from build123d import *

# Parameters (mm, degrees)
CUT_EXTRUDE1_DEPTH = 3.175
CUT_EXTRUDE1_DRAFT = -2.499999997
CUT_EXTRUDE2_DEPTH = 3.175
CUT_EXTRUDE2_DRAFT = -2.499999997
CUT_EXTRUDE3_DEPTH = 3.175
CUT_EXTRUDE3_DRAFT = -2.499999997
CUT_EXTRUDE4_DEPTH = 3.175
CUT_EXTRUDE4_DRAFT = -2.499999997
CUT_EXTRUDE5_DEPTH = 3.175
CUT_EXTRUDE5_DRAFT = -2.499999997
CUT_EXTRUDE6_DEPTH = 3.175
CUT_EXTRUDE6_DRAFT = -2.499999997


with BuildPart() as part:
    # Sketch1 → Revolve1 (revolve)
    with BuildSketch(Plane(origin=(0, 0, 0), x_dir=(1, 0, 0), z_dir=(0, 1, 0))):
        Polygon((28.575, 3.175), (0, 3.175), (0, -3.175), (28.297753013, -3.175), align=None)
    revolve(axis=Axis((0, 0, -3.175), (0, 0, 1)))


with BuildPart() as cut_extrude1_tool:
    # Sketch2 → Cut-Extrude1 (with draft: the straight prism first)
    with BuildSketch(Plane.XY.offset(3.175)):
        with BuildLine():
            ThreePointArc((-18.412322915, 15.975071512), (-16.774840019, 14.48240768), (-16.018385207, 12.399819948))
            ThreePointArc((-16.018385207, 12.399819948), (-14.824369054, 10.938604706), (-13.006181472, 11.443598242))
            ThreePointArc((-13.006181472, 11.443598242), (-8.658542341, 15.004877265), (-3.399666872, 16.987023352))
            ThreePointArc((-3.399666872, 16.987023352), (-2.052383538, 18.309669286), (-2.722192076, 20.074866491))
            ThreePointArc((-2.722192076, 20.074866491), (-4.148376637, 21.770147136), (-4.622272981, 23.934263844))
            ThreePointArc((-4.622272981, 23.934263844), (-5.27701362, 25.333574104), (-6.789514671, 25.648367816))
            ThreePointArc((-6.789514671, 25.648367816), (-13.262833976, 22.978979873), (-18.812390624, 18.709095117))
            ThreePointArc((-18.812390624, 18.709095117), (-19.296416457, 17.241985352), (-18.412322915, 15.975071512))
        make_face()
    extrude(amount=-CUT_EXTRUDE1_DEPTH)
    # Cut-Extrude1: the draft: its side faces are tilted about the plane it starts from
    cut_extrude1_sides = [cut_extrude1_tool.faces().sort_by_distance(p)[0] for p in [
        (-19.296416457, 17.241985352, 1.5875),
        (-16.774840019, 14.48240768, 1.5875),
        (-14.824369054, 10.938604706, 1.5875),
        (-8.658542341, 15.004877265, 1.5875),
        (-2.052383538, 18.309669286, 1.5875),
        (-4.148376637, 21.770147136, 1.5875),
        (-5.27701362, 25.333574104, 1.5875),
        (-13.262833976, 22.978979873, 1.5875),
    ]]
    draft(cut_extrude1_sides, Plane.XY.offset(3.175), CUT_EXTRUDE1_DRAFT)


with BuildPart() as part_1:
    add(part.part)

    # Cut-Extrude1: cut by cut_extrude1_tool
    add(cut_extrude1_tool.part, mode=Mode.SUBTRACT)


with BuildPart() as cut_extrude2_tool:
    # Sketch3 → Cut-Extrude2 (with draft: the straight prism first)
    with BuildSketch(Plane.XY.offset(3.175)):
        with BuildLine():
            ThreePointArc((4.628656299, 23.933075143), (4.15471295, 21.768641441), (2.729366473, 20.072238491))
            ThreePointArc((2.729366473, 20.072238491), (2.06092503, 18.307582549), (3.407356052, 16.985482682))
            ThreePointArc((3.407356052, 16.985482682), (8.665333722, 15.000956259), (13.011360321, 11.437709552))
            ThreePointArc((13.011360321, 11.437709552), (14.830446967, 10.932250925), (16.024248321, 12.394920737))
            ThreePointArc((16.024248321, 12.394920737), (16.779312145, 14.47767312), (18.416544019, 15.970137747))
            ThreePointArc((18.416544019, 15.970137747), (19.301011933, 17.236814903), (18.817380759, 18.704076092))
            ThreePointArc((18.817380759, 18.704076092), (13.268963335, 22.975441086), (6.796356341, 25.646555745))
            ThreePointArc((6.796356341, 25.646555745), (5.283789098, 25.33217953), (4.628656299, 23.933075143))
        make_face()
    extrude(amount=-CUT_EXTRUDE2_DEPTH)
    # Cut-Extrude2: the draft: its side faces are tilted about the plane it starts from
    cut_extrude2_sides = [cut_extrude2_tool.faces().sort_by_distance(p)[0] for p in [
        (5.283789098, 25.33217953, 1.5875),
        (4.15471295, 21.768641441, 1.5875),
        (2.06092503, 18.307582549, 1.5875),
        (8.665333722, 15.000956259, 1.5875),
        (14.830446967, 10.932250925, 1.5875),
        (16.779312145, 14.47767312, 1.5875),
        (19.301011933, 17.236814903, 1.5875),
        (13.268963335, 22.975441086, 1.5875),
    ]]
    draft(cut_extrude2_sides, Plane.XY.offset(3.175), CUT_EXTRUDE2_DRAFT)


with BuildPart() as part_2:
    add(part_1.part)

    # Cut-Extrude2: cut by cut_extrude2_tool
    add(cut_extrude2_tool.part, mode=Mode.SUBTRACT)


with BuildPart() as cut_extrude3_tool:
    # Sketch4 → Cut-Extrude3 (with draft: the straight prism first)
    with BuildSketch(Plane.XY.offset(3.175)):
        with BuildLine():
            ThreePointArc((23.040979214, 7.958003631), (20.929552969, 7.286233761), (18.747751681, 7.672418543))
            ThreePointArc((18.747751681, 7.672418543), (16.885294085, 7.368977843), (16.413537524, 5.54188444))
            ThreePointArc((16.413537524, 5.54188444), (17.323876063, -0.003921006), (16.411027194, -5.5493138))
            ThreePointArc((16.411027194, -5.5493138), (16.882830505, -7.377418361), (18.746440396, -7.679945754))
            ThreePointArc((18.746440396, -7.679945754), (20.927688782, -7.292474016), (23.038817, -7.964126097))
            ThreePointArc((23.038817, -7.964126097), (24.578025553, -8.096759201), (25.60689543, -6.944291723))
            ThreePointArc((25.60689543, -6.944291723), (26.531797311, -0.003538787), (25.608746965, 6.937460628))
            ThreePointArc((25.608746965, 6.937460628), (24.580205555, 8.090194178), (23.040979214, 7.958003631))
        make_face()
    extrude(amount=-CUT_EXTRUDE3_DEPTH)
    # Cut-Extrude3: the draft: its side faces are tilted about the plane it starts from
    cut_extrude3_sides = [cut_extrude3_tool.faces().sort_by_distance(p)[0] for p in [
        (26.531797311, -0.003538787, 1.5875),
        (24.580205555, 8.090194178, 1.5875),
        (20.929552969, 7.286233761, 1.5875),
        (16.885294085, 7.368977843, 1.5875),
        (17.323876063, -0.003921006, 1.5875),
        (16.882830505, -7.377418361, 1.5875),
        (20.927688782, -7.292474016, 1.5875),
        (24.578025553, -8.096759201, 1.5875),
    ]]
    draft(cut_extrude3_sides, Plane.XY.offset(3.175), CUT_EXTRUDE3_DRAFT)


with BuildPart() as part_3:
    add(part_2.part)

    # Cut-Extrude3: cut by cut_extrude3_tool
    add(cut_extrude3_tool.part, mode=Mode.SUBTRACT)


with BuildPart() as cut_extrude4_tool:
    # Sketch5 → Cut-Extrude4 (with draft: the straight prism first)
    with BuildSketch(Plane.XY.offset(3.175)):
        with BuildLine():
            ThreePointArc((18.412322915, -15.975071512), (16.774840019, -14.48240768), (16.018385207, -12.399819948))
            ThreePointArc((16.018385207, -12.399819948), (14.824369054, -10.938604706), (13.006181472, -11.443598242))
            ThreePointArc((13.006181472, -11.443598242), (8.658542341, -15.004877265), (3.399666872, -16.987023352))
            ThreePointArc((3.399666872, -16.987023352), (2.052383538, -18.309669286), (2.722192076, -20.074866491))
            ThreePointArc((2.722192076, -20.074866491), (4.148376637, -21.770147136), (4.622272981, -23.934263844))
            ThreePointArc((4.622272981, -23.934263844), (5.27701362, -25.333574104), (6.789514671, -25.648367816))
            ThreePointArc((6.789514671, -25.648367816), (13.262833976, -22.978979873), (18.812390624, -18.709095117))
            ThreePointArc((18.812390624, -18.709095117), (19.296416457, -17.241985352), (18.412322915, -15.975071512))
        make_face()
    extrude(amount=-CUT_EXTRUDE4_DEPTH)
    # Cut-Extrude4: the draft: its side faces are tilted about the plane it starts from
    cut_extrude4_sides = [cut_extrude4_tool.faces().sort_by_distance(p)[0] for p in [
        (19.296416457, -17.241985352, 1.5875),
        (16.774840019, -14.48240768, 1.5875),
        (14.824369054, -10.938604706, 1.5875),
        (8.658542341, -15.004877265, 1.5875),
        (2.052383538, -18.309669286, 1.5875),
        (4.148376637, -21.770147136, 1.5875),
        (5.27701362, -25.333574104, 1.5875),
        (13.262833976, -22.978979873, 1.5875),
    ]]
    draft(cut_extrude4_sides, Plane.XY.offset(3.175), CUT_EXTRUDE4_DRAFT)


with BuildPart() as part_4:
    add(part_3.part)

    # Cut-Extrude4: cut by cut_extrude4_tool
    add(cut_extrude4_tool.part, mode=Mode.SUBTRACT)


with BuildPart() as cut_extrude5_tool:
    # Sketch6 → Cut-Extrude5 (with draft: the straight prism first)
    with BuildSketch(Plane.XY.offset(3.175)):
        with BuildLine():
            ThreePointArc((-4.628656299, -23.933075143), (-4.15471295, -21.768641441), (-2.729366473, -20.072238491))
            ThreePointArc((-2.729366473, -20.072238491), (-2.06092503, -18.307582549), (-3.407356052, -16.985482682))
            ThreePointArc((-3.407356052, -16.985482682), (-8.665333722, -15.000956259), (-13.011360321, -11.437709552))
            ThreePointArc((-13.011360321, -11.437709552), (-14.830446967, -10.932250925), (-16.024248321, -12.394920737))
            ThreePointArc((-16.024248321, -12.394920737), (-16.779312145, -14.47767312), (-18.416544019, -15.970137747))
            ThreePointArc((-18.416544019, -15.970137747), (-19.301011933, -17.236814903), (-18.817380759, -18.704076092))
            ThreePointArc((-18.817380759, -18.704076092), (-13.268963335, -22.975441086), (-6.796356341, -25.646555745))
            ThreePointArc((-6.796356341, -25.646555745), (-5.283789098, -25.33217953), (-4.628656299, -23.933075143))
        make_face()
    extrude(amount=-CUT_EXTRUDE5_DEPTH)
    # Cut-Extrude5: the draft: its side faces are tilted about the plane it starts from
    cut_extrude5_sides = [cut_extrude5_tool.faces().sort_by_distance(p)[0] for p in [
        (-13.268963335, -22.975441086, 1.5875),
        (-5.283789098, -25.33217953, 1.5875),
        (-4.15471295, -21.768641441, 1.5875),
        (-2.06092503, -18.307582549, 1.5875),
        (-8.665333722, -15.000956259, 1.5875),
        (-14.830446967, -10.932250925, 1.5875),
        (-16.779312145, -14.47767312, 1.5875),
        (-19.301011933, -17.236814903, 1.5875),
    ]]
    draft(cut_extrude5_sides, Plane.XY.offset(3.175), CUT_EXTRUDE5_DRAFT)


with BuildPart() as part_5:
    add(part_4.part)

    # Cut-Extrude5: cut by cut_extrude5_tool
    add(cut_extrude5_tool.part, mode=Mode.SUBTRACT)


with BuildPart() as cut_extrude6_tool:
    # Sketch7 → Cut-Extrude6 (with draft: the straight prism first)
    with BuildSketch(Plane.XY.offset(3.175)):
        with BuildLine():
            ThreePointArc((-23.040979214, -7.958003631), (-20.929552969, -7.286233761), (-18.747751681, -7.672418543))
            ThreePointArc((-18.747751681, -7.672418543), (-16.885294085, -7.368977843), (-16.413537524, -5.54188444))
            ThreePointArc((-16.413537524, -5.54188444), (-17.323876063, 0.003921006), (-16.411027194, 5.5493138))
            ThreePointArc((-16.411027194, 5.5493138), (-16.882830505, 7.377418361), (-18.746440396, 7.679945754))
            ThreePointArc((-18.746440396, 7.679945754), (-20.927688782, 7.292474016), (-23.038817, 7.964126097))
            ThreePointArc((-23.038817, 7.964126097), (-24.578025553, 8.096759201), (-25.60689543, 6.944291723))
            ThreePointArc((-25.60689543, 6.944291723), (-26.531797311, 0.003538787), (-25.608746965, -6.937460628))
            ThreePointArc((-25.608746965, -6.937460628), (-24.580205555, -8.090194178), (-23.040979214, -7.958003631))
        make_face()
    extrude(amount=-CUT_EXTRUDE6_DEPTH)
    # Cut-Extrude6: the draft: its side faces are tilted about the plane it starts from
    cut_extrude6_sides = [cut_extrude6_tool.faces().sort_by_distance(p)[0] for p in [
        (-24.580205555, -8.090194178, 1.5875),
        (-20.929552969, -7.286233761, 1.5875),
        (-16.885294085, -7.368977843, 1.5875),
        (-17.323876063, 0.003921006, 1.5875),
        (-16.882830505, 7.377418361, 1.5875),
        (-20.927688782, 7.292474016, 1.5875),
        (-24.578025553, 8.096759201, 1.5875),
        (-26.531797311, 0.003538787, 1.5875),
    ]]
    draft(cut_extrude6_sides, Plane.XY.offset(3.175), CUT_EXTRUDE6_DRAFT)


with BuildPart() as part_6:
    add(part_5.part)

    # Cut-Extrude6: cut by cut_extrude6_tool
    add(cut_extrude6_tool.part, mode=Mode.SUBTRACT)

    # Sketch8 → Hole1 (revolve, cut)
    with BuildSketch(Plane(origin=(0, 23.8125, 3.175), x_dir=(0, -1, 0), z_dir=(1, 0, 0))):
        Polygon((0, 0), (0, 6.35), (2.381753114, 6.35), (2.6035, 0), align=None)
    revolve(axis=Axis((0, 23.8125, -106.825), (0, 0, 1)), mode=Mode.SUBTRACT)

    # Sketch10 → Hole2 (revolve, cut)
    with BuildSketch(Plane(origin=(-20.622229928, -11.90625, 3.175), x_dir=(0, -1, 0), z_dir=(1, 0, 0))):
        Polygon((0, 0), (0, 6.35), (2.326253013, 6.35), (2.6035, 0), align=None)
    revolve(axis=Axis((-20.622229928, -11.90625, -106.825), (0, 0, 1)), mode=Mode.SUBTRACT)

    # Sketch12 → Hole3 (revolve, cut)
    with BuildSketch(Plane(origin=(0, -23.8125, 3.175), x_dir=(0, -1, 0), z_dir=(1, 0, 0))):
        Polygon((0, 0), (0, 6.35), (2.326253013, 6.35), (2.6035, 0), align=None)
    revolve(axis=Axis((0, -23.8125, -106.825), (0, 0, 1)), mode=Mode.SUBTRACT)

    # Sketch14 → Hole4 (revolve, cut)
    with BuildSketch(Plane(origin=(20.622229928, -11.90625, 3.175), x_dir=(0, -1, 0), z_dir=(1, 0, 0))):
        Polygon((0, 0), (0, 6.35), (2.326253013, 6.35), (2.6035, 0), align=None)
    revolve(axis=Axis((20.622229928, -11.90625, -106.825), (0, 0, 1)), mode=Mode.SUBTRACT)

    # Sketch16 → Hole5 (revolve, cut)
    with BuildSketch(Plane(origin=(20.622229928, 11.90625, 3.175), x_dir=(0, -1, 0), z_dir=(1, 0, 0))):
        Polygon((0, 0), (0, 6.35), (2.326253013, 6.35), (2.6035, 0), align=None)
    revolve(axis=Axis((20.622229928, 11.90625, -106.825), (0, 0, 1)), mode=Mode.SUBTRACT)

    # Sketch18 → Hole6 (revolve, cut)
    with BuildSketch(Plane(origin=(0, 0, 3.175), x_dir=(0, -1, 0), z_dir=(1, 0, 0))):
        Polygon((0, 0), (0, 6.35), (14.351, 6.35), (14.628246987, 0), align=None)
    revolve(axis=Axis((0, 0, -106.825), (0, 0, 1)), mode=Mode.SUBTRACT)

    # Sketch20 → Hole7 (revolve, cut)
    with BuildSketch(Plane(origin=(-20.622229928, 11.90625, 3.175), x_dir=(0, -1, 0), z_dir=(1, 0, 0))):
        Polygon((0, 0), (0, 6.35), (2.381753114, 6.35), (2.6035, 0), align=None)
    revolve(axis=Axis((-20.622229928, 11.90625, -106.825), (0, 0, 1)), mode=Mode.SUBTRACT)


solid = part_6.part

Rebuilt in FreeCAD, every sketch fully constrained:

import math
import FreeCAD as App
import Part
import Sketcher
Q = App.Units.Quantity


def faces_at(feature, points):
    """Names of the faces that lie closest to the given points."""
    faces = feature.Shape.Faces
    near = lambda p: min(range(len(faces)), key=lambda i: faces[i].distToShape(Part.Vertex(*p))[0])
    return sorted({f"Face{near(p) + 1}" for p in points})


def add_polygon(sketch, points):
    """Adds a closed chain of lines whose ends are joined by coincident constraints."""
    first, n = sketch.GeometryCount, len(points)
    for a, b in zip(points, points[1:] + points[:1]):
        sketch.addGeometry(Part.LineSegment(App.Vector(*a, 0), App.Vector(*b, 0)), False)
    for i in range(n):
        sketch.addConstraint(Sketcher.Constraint("Coincident", first + i, 2, first + (i + 1) % n, 1))

doc = App.newDocument("Part")
body = doc.addObject("PartDesign::Body", "Body")

sketch1 = body.newObject("Sketcher::SketchObject", "Sketch")
sketch1.AttachmentSupport = (doc.getObject("XZ_Plane"), [""])
sketch1.MapMode = "FlatFace"
add_polygon(sketch1, [(29, -3), (0, -3), (0, 3), (28, 3)])
sketch1.addConstraint([
    Sketcher.Constraint("Horizontal", 0),
    Sketcher.Constraint("Vertical", 1),
    Sketcher.Constraint("Horizontal", 2),
    Sketcher.Constraint("Symmetric", 0, 2, 1, 2, -1, 1),
    Sketcher.Constraint("DistanceY", 1, 1, 1, 2, Q("0.25 in")),
    Sketcher.Constraint("Angle", 3, Q("-87.5 deg")),
    Sketcher.Constraint("DistanceX", 0, 2, 0, 1, Q("1.125 in")),
])
revolution = body.newObject("PartDesign::Revolution", "Revolution")
revolution.Profile = sketch1
revolution.ReferenceAxis = (sketch1, ["V_Axis"])
revolution.Angle = 360
body2 = doc.addObject("PartDesign::Body", "Body001")

sketch2 = body2.newObject("Sketcher::SketchObject", "Sketch001")
sketch2.AttachmentSupport = (doc.getObject("XY_Plane001"), [""])
sketch2.MapMode = "FlatFace"
sketch2.AttachmentOffset = App.Placement(App.Vector(0, 0, 0.125 * 25.4), App.Rotation())
sketch2.addGeometry([
    Part.ArcOfCircle(Part.Circle(App.Vector(-20.6, 11.9, 0), App.Vector(0, 0, 1), 4.6), math.radians(6), math.radians(61)),
    Part.ArcOfCircle(Part.Circle(App.Vector(-14.3, 12.6, 0), App.Vector(0, 0, 1), 1.7), math.radians(-174), math.radians(-41)),
    Part.ArcOfCircle(Part.Circle(App.Vector(0, 0, 0), App.Vector(0, 0, 1), 17.3), math.radians(101), math.radians(139)),
    Part.ArcOfCircle(Part.Circle(App.Vector(-3.7, 18.7, 0), App.Vector(0, 0, 1), 1.7), math.radians(-79), math.radians(54)),
    Part.ArcOfCircle(Part.Circle(App.Vector(0, 23.8, 0), App.Vector(0, 0, 1), 4.6), math.radians(178), math.radians(234)),
    Part.ArcOfCircle(Part.Circle(App.Vector(-6.3, 24, 0), App.Vector(0, 0, 1), 1.7), math.radians(-2), math.radians(105)),
    Part.ArcOfCircle(Part.Circle(App.Vector(0, 0, 0), App.Vector(0, 0, 1), 26.5), math.radians(105), math.radians(135)),
    Part.ArcOfCircle(Part.Circle(App.Vector(-17.6, 17.5, 0), App.Vector(0, 0, 1), 1.7), math.radians(135), math.radians(241)),
], False)
sketch2.addConstraint([
    Sketcher.Constraint("Tangent", 0, 1, 1, 1),
    Sketcher.Constraint("Tangent", 1, 2, 2, 2),
    Sketcher.Constraint("Tangent", 2, 1, 3, 1),
    Sketcher.Constraint("Tangent", 3, 2, 4, 2),
    Sketcher.Constraint("Tangent", 4, 1, 5, 1),
    Sketcher.Constraint("Tangent", 5, 2, 6, 1),
    Sketcher.Constraint("Tangent", 6, 2, 7, 1),
    Sketcher.Constraint("Tangent", 7, 2, 0, 2),
    Sketcher.Constraint("Coincident", 2, 3, -1, 1),
    Sketcher.Constraint("Coincident", 6, 3, -1, 1),
    Sketcher.Constraint("Equal", 1, 3),
    Sketcher.Constraint("Equal", 3, 5),
    Sketcher.Constraint("Equal", 5, 7),
    Sketcher.Constraint("PointOnObject", 4, 3, -2),
    Sketcher.Constraint("DistanceY", -1, 1, 0, 3, Q("0.46875 in")),
    Sketcher.Constraint("DistanceY", -1, 1, 4, 3, Q("0.9375 in")),
    Sketcher.Constraint("Radius", 0, Q("4.630227 mm")),
    Sketcher.Constraint("Radius", 1, Q("1.726123 mm")),
    Sketcher.Constraint("Radius", 2, Q("17.323877 mm")),
    Sketcher.Constraint("Radius", 4, Q("4.623877 mm")),
    Sketcher.Constraint("Radius", 6, Q("26.531798 mm")),
    Sketcher.Constraint("DistanceY", -1, 1, 1, 2, Q("11.443598 mm")),
])
pad1 = body2.newObject("PartDesign::Pad", "Pad")
pad1.Profile = sketch2
pad1.Length = Q("0.125 in")
pad1.Reversed = True
doc.recompute()

datumplane = body2.newObject("PartDesign::Plane", "DatumPlane")
datumplane.AttachmentSupport = (doc.getObject("XY_Plane001"), [""])
datumplane.MapMode = "FlatFace"
datumplane.AttachmentOffset = App.Placement(App.Vector(0, 0, 0.125 * 25.4), App.Rotation())
draft = body2.newObject("PartDesign::Draft", "Draft")
draft.Base = (pad1, faces_at(pad1, [
    (-19.296, 17.242, 1.587),
    (-16.775, 14.482, 1.587),
    (-14.824, 10.939, 1.587),
    (-8.659, 15.005, 1.587),
    (-2.052, 18.31, 1.587),
    (-4.148, 21.77, 1.587),
    (-5.277, 25.334, 1.587),
    (-13.263, 22.979, 1.587),
]))
draft.NeutralPlane = (datumplane, [""])
draft.Angle = 2.5
draft.Reversed = True
doc.recompute()

boolean = body.newObject("PartDesign::Boolean", "Boolean")
boolean.Type = "Cut"
boolean.addObjects([body2])
body3 = doc.addObject("PartDesign::Body", "Body002")

sketch3 = body3.newObject("Sketcher::SketchObject", "Sketch002")
sketch3.AttachmentSupport = (doc.getObject("XY_Plane002"), [""])
sketch3.MapMode = "FlatFace"
sketch3.AttachmentOffset = App.Placement(App.Vector(0, 0, 0.125 * 25.4), App.Rotation())
sketch3.addGeometry([
    Part.ArcOfCircle(Part.Circle(App.Vector(0, 23.8, 0), App.Vector(0, 0, 1), 4.6), math.radians(-54), math.radians(1)),
    Part.ArcOfCircle(Part.Circle(App.Vector(3.7, 18.7, 0), App.Vector(0, 0, 1), 1.7), math.radians(126), math.radians(259)),
    Part.ArcOfCircle(Part.Circle(App.Vector(0, 0, 0), App.Vector(0, 0, 1), 17.3), math.radians(41), math.radians(79)),
    Part.ArcOfCircle(Part.Circle(App.Vector(14.3, 12.6, 0), App.Vector(0, 0, 1), 1.7), math.radians(-139), math.radians(-6)),
    Part.ArcOfCircle(Part.Circle(App.Vector(20.6, 11.9, 0), App.Vector(0, 0, 1), 4.6), math.radians(118), math.radians(174)),
    Part.ArcOfCircle(Part.Circle(App.Vector(17.6, 17.5, 0), App.Vector(0, 0, 1), 1.7), math.radians(-62), math.radians(45)),
    Part.ArcOfCircle(Part.Circle(App.Vector(0, 0, 0), App.Vector(0, 0, 1), 26.5), math.radians(45), math.radians(75)),
    Part.ArcOfCircle(Part.Circle(App.Vector(6.4, 24, 0), App.Vector(0, 0, 1), 1.7), math.radians(75), math.radians(181)),
], False)
sketch3.addConstraint([
    Sketcher.Constraint("Tangent", 0, 1, 1, 1),
    Sketcher.Constraint("Tangent", 1, 2, 2, 2),
    Sketcher.Constraint("Tangent", 2, 1, 3, 1),
    Sketcher.Constraint("Tangent", 3, 2, 4, 2),
    Sketcher.Constraint("Tangent", 4, 1, 5, 1),
    Sketcher.Constraint("Tangent", 5, 2, 6, 1),
    Sketcher.Constraint("Tangent", 6, 2, 7, 1),
    Sketcher.Constraint("Tangent", 7, 2, 0, 2),
    Sketcher.Constraint("Coincident", 2, 3, -1, 1),
    Sketcher.Constraint("Coincident", 6, 3, -1, 1),
    Sketcher.Constraint("Equal", 1, 3),
    Sketcher.Constraint("Equal", 3, 5),
    Sketcher.Constraint("Equal", 5, 7),
    Sketcher.Constraint("PointOnObject", 0, 3, -2),
    Sketcher.Constraint("DistanceY", -1, 1, 0, 3, Q("0.9375 in")),
    Sketcher.Constraint("DistanceY", -1, 1, 4, 3, Q("0.46875 in")),
    Sketcher.Constraint("Radius", 0, Q("4.630227 mm")),
    Sketcher.Constraint("Radius", 1, Q("1.726123 mm")),
    Sketcher.Constraint("Radius", 2, Q("17.323877 mm")),
    Sketcher.Constraint("Radius", 4, Q("4.623877 mm")),
    Sketcher.Constraint("Radius", 6, Q("26.531798 mm")),
    Sketcher.Constraint("DistanceX", 3, 3, 4, 3, Q("0.2485999 in")),
])
pad2 = body3.newObject("PartDesign::Pad", "Pad001")
pad2.Profile = sketch3
pad2.Length = Q("0.125 in")
pad2.Reversed = True
doc.recompute()

datumplane2 = body3.newObject("PartDesign::Plane", "DatumPlane001")
datumplane2.AttachmentSupport = (doc.getObject("XY_Plane002"), [""])
datumplane2.MapMode = "FlatFace"
datumplane2.AttachmentOffset = App.Placement(App.Vector(0, 0, 0.125 * 25.4), App.Rotation())
draft2 = body3.newObject("PartDesign::Draft", "Draft001")
draft2.Base = (pad2, faces_at(pad2, [
    (5.284, 25.332, 1.587),
    (4.155, 21.769, 1.587),
    (2.061, 18.308, 1.587),
    (8.665, 15.001, 1.587),
    (14.83, 10.932, 1.587),
    (16.779, 14.478, 1.587),
    (19.301, 17.237, 1.587),
    (13.269, 22.975, 1.587),
]))
draft2.NeutralPlane = (datumplane2, [""])
draft2.Angle = 2.5
draft2.Reversed = True
doc.recompute()

boolean2 = body.newObject("PartDesign::Boolean", "Boolean001")
boolean2.Type = "Cut"
boolean2.addObjects([body3])
body4 = doc.addObject("PartDesign::Body", "Body003")

sketch4 = body4.newObject("Sketcher::SketchObject", "Sketch003")
sketch4.AttachmentSupport = (doc.getObject("XY_Plane003"), [""])
sketch4.MapMode = "FlatFace"
sketch4.AttachmentOffset = App.Placement(App.Vector(0, 0, 0.125 * 25.4), App.Rotation())
sketch4.addGeometry([
    Part.ArcOfCircle(Part.Circle(App.Vector(20.6, 11.9, 0), App.Vector(0, 0, 1), 4.6), math.radians(-114), math.radians(-59)),
    Part.ArcOfCircle(Part.Circle(App.Vector(18, 6.1, 0), App.Vector(0, 0, 1), 1.7), math.radians(66), math.radians(199)),
    Part.ArcOfCircle(Part.Circle(App.Vector(0, 0, 0), App.Vector(0, 0, 1), 17.3), math.radians(-19), math.radians(19)),
    Part.ArcOfCircle(Part.Circle(App.Vector(18, -6.1, 0), App.Vector(0, 0, 1), 1.7), math.radians(161), math.radians(294)),
    Part.ArcOfCircle(Part.Circle(App.Vector(20.6, -11.9, 0), App.Vector(0, 0, 1), 4.6), math.radians(58), math.radians(114)),
    Part.ArcOfCircle(Part.Circle(App.Vector(23.9, -6.5, 0), App.Vector(0, 0, 1), 1.7), math.radians(-122), math.radians(-15)),
    Part.ArcOfCircle(Part.Circle(App.Vector(0, 0, 0), App.Vector(0, 0, 1), 26.5), math.radians(-15), math.radians(15)),
    Part.ArcOfCircle(Part.Circle(App.Vector(23.9, 6.5, 0), App.Vector(0, 0, 1), 1.7), math.radians(15), math.radians(121)),
], False)
sketch4.addConstraint([
    Sketcher.Constraint("Tangent", 0, 1, 1, 1),
    Sketcher.Constraint("Tangent", 1, 2, 2, 2),
    Sketcher.Constraint("Tangent", 2, 1, 3, 1),
    Sketcher.Constraint("Tangent", 3, 2, 4, 2),
    Sketcher.Constraint("Tangent", 4, 1, 5, 1),
    Sketcher.Constraint("Tangent", 5, 2, 6, 1),
    Sketcher.Constraint("Tangent", 6, 2, 7, 1),
    Sketcher.Constraint("Tangent", 7, 2, 0, 2),
    Sketcher.Constraint("Coincident", 2, 3, -1, 1),
    Sketcher.Constraint("Coincident", 6, 3, -1, 1),
    Sketcher.Constraint("Equal", 1, 3),
    Sketcher.Constraint("Equal", 3, 5),
    Sketcher.Constraint("Equal", 5, 7),
    Sketcher.Constraint("Symmetric", 0, 3, 4, 3, -1),
    Sketcher.Constraint("DistanceY", -1, 1, 0, 3, Q("0.46875 in")),
    Sketcher.Constraint("Radius", 0, Q("4.630227 mm")),
    Sketcher.Constraint("Radius", 1, Q("1.726123 mm")),
    Sketcher.Constraint("Radius", 2, Q("17.323876 mm")),
    Sketcher.Constraint("Radius", 4, Q("4.623877 mm")),
    Sketcher.Constraint("Radius", 6, Q("26.531798 mm")),
    Sketcher.Constraint("DistanceX", 7, 2, 7, 3, Q("0.0354999 in")),
])
pad3 = body4.newObject("PartDesign::Pad", "Pad002")
pad3.Profile = sketch4
pad3.Length = Q("0.125 in")
pad3.Reversed = True
doc.recompute()

datumplane3 = body4.newObject("PartDesign::Plane", "DatumPlane002")
datumplane3.AttachmentSupport = (doc.getObject("XY_Plane003"), [""])
datumplane3.MapMode = "FlatFace"
datumplane3.AttachmentOffset = App.Placement(App.Vector(0, 0, 0.125 * 25.4), App.Rotation())
draft3 = body4.newObject("PartDesign::Draft", "Draft002")
draft3.Base = (pad3, faces_at(pad3, [
    (26.532, -0.004, 1.587),
    (24.58, 8.09, 1.587),
    (20.93, 7.286, 1.587),
    (16.885, 7.369, 1.587),
    (17.324, -0.004, 1.587),
    (16.883, -7.377, 1.587),
    (20.928, -7.292, 1.587),
    (24.578, -8.097, 1.587),
]))
draft3.NeutralPlane = (datumplane3, [""])
draft3.Angle = 2.5
draft3.Reversed = True
doc.recompute()

boolean3 = body.newObject("PartDesign::Boolean", "Boolean002")
boolean3.Type = "Cut"
boolean3.addObjects([body4])
body5 = doc.addObject("PartDesign::Body", "Body004")

sketch5 = body5.newObject("Sketcher::SketchObject", "Sketch004")
sketch5.AttachmentSupport = (doc.getObject("XY_Plane004"), [""])
sketch5.MapMode = "FlatFace"
sketch5.AttachmentOffset = App.Placement(App.Vector(0, 0, 0.125 * 25.4), App.Rotation())
sketch5.addGeometry([
    Part.ArcOfCircle(Part.Circle(App.Vector(20.6, -11.9, 0), App.Vector(0, 0, 1), 4.6), math.radians(-174), math.radians(-119)),
    Part.ArcOfCircle(Part.Circle(App.Vector(14.3, -12.6, 0), App.Vector(0, 0, 1), 1.7), math.radians(6), math.radians(139)),
    Part.ArcOfCircle(Part.Circle(App.Vector(0, 0, 0), App.Vector(0, 0, 1), 17.3), math.radians(-79), math.radians(-41)),
    Part.ArcOfCircle(Part.Circle(App.Vector(3.7, -18.7, 0), App.Vector(0, 0, 1), 1.7), math.radians(101), math.radians(234)),
    Part.ArcOfCircle(Part.Circle(App.Vector(0, -23.8, 0), App.Vector(0, 0, 1), 4.6), math.radians(-2), math.radians(54)),
    Part.ArcOfCircle(Part.Circle(App.Vector(6.3, -24, 0), App.Vector(0, 0, 1), 1.7), math.radians(178), math.radians(285)),
    Part.ArcOfCircle(Part.Circle(App.Vector(0, 0, 0), App.Vector(0, 0, 1), 26.5), math.radians(-75), math.radians(-45)),
    Part.ArcOfCircle(Part.Circle(App.Vector(17.6, -17.5, 0), App.Vector(0, 0, 1), 1.7), math.radians(-45), math.radians(61)),
], False)
sketch5.addConstraint([
    Sketcher.Constraint("Tangent", 0, 1, 1, 1),
    Sketcher.Constraint("Tangent", 1, 2, 2, 2),
    Sketcher.Constraint("Tangent", 2, 1, 3, 1),
    Sketcher.Constraint("Tangent", 3, 2, 4, 2),
    Sketcher.Constraint("Tangent", 4, 1, 5, 1),
    Sketcher.Constraint("Tangent", 5, 2, 6, 1),
    Sketcher.Constraint("Tangent", 6, 2, 7, 1),
    Sketcher.Constraint("Tangent", 7, 2, 0, 2),
    Sketcher.Constraint("Coincident", 2, 3, -1, 1),
    Sketcher.Constraint("Coincident", 6, 3, -1, 1),
    Sketcher.Constraint("Equal", 1, 3),
    Sketcher.Constraint("Equal", 3, 5),
    Sketcher.Constraint("Equal", 5, 7),
    Sketcher.Constraint("PointOnObject", 4, 3, -2),
    Sketcher.Constraint("DistanceY", 0, 3, -1, 1, Q("0.46875 in")),
    Sketcher.Constraint("DistanceY", 4, 3, -1, 1, Q("0.9375 in")),
    Sketcher.Constraint("Radius", 0, Q("4.630227 mm")),
    Sketcher.Constraint("Radius", 1, Q("1.726123 mm")),
    Sketcher.Constraint("Radius", 2, Q("17.323877 mm")),
    Sketcher.Constraint("Radius", 4, Q("4.623877 mm")),
    Sketcher.Constraint("Radius", 6, Q("26.531798 mm")),
    Sketcher.Constraint("DistanceY", 1, 2, -1, 1, Q("11.443598 mm")),
])
pad4 = body5.newObject("PartDesign::Pad", "Pad003")
pad4.Profile = sketch5
pad4.Length = Q("0.125 in")
pad4.Reversed = True
doc.recompute()

datumplane4 = body5.newObject("PartDesign::Plane", "DatumPlane003")
datumplane4.AttachmentSupport = (doc.getObject("XY_Plane004"), [""])
datumplane4.MapMode = "FlatFace"
datumplane4.AttachmentOffset = App.Placement(App.Vector(0, 0, 0.125 * 25.4), App.Rotation())
draft4 = body5.newObject("PartDesign::Draft", "Draft003")
draft4.Base = (pad4, faces_at(pad4, [
    (19.296, -17.242, 1.587),
    (16.775, -14.482, 1.587),
    (14.824, -10.939, 1.587),
    (8.659, -15.005, 1.587),
    (2.052, -18.31, 1.587),
    (4.148, -21.77, 1.587),
    (5.277, -25.334, 1.587),
    (13.263, -22.979, 1.587),
]))
draft4.NeutralPlane = (datumplane4, [""])
draft4.Angle = 2.5
draft4.Reversed = True
doc.recompute()

boolean4 = body.newObject("PartDesign::Boolean", "Boolean003")
boolean4.Type = "Cut"
boolean4.addObjects([body5])
body6 = doc.addObject("PartDesign::Body", "Body005")

sketch6 = body6.newObject("Sketcher::SketchObject", "Sketch005")
sketch6.AttachmentSupport = (doc.getObject("XY_Plane005"), [""])
sketch6.MapMode = "FlatFace"
sketch6.AttachmentOffset = App.Placement(App.Vector(0, 0, 0.125 * 25.4), App.Rotation())
sketch6.addGeometry([
    Part.ArcOfCircle(Part.Circle(App.Vector(0, -23.8, 0), App.Vector(0, 0, 1), 4.6), math.radians(126), math.radians(181)),
    Part.ArcOfCircle(Part.Circle(App.Vector(-3.7, -18.7, 0), App.Vector(0, 0, 1), 1.7), math.radians(-54), math.radians(79)),
    Part.ArcOfCircle(Part.Circle(App.Vector(0, 0, 0), App.Vector(0, 0, 1), 17.3), math.radians(-139), math.radians(-101)),
    Part.ArcOfCircle(Part.Circle(App.Vector(-14.3, -12.6, 0), App.Vector(0, 0, 1), 1.7), math.radians(41), math.radians(174)),
    Part.ArcOfCircle(Part.Circle(App.Vector(-20.6, -11.9, 0), App.Vector(0, 0, 1), 4.6), math.radians(-62), math.radians(-6)),
    Part.ArcOfCircle(Part.Circle(App.Vector(-17.6, -17.5, 0), App.Vector(0, 0, 1), 1.7), math.radians(118), math.radians(225)),
    Part.ArcOfCircle(Part.Circle(App.Vector(0, 0, 0), App.Vector(0, 0, 1), 26.5), math.radians(-135), math.radians(-105)),
    Part.ArcOfCircle(Part.Circle(App.Vector(-6.4, -24, 0), App.Vector(0, 0, 1), 1.7), math.radians(-105), math.radians(1)),
], False)
sketch6.addConstraint([
    Sketcher.Constraint("Tangent", 0, 1, 1, 1),
    Sketcher.Constraint("Tangent", 1, 2, 2, 2),
    Sketcher.Constraint("Tangent", 2, 1, 3, 1),
    Sketcher.Constraint("Tangent", 3, 2, 4, 2),
    Sketcher.Constraint("Tangent", 4, 1, 5, 1),
    Sketcher.Constraint("Tangent", 5, 2, 6, 1),
    Sketcher.Constraint("Tangent", 6, 2, 7, 1),
    Sketcher.Constraint("Tangent", 7, 2, 0, 2),
    Sketcher.Constraint("Coincident", 2, 3, -1, 1),
    Sketcher.Constraint("Coincident", 6, 3, -1, 1),
    Sketcher.Constraint("Equal", 1, 3),
    Sketcher.Constraint("Equal", 3, 5),
    Sketcher.Constraint("Equal", 5, 7),
    Sketcher.Constraint("PointOnObject", 0, 3, -2),
    Sketcher.Constraint("DistanceY", 0, 3, -1, 1, Q("0.9375 in")),
    Sketcher.Constraint("DistanceY", 4, 3, -1, 1, Q("0.46875 in")),
    Sketcher.Constraint("Radius", 0, Q("4.630227 mm")),
    Sketcher.Constraint("Radius", 1, Q("1.726123 mm")),
    Sketcher.Constraint("Radius", 2, Q("17.323877 mm")),
    Sketcher.Constraint("Radius", 4, Q("4.623877 mm")),
    Sketcher.Constraint("Radius", 6, Q("26.531798 mm")),
    Sketcher.Constraint("DistanceX", 4, 3, 3, 3, Q("0.2485999 in")),
])
pad5 = body6.newObject("PartDesign::Pad", "Pad004")
pad5.Profile = sketch6
pad5.Length = Q("0.125 in")
pad5.Reversed = True
doc.recompute()

datumplane5 = body6.newObject("PartDesign::Plane", "DatumPlane004")
datumplane5.AttachmentSupport = (doc.getObject("XY_Plane005"), [""])
datumplane5.MapMode = "FlatFace"
datumplane5.AttachmentOffset = App.Placement(App.Vector(0, 0, 0.125 * 25.4), App.Rotation())
draft5 = body6.newObject("PartDesign::Draft", "Draft004")
draft5.Base = (pad5, faces_at(pad5, [
    (-13.269, -22.975, 1.587),
    (-5.284, -25.332, 1.587),
    (-4.155, -21.769, 1.587),
    (-2.061, -18.308, 1.587),
    (-8.665, -15.001, 1.587),
    (-14.83, -10.932, 1.587),
    (-16.779, -14.478, 1.587),
    (-19.301, -17.237, 1.587),
]))
draft5.NeutralPlane = (datumplane5, [""])
draft5.Angle = 2.5
draft5.Reversed = True
doc.recompute()

boolean5 = body.newObject("PartDesign::Boolean", "Boolean004")
boolean5.Type = "Cut"
boolean5.addObjects([body6])
body7 = doc.addObject("PartDesign::Body", "Body006")

sketch7 = body7.newObject("Sketcher::SketchObject", "Sketch006")
sketch7.AttachmentSupport = (doc.getObject("XY_Plane006"), [""])
sketch7.MapMode = "FlatFace"
sketch7.AttachmentOffset = App.Placement(App.Vector(0, 0, 0.125 * 25.4), App.Rotation())
sketch7.addGeometry([
    Part.ArcOfCircle(Part.Circle(App.Vector(-20.6, -11.9, 0), App.Vector(0, 0, 1), 4.6), math.radians(66), math.radians(121)),
    Part.ArcOfCircle(Part.Circle(App.Vector(-18, -6.1, 0), App.Vector(0, 0, 1), 1.7), math.radians(-114), math.radians(19)),
    Part.ArcOfCircle(Part.Circle(App.Vector(0, 0, 0), App.Vector(0, 0, 1), 17.3), math.radians(161), math.radians(199)),
    Part.ArcOfCircle(Part.Circle(App.Vector(-18, 6.1, 0), App.Vector(0, 0, 1), 1.7), math.radians(-19), math.radians(114)),
    Part.ArcOfCircle(Part.Circle(App.Vector(-20.6, 11.9, 0), App.Vector(0, 0, 1), 4.6), math.radians(-122), math.radians(-66)),
    Part.ArcOfCircle(Part.Circle(App.Vector(-23.9, 6.5, 0), App.Vector(0, 0, 1), 1.7), math.radians(58), math.radians(165)),
    Part.ArcOfCircle(Part.Circle(App.Vector(0, 0, 0), App.Vector(0, 0, 1), 26.5), math.radians(165), math.radians(195)),
    Part.ArcOfCircle(Part.Circle(App.Vector(-23.9, -6.5, 0), App.Vector(0, 0, 1), 1.7), math.radians(-165), math.radians(-59)),
], False)
sketch7.addConstraint([
    Sketcher.Constraint("Tangent", 0, 1, 1, 1),
    Sketcher.Constraint("Tangent", 1, 2, 2, 2),
    Sketcher.Constraint("Tangent", 2, 1, 3, 1),
    Sketcher.Constraint("Tangent", 3, 2, 4, 2),
    Sketcher.Constraint("Tangent", 4, 1, 5, 1),
    Sketcher.Constraint("Tangent", 5, 2, 6, 1),
    Sketcher.Constraint("Tangent", 6, 2, 7, 1),
    Sketcher.Constraint("Tangent", 7, 2, 0, 2),
    Sketcher.Constraint("Coincident", 2, 3, -1, 1),
    Sketcher.Constraint("Coincident", 6, 3, -1, 1),
    Sketcher.Constraint("Equal", 1, 3),
    Sketcher.Constraint("Equal", 3, 5),
    Sketcher.Constraint("Equal", 5, 7),
    Sketcher.Constraint("Symmetric", 0, 3, 4, 3, -1),
    Sketcher.Constraint("DistanceY", 0, 3, -1, 1, Q("0.46875 in")),
    Sketcher.Constraint("Radius", 0, Q("4.630227 mm")),
    Sketcher.Constraint("Radius", 1, Q("1.726123 mm")),
    Sketcher.Constraint("Radius", 2, Q("17.323876 mm")),
    Sketcher.Constraint("Radius", 4, Q("4.623877 mm")),
    Sketcher.Constraint("Radius", 6, Q("26.531798 mm")),
    Sketcher.Constraint("DistanceX", 7, 3, 7, 2, Q("0.0354999 in")),
])
pad6 = body7.newObject("PartDesign::Pad", "Pad005")
pad6.Profile = sketch7
pad6.Length = Q("0.125 in")
pad6.Reversed = True
doc.recompute()

datumplane6 = body7.newObject("PartDesign::Plane", "DatumPlane005")
datumplane6.AttachmentSupport = (doc.getObject("XY_Plane006"), [""])
datumplane6.MapMode = "FlatFace"
datumplane6.AttachmentOffset = App.Placement(App.Vector(0, 0, 0.125 * 25.4), App.Rotation())
draft6 = body7.newObject("PartDesign::Draft", "Draft005")
draft6.Base = (pad6, faces_at(pad6, [
    (-24.58, -8.09, 1.587),
    (-20.93, -7.286, 1.587),
    (-16.885, -7.369, 1.587),
    (-17.324, 0.004, 1.587),
    (-16.883, 7.377, 1.587),
    (-20.928, 7.292, 1.587),
    (-24.578, 8.097, 1.587),
    (-26.532, 0.004, 1.587),
]))
draft6.NeutralPlane = (datumplane6, [""])
draft6.Angle = 2.5
draft6.Reversed = True
doc.recompute()

boolean6 = body.newObject("PartDesign::Boolean", "Boolean005")
boolean6.Type = "Cut"
boolean6.addObjects([body7])

sketch8 = body.newObject("Sketcher::SketchObject", "Sketch007")
sketch8.AttachmentSupport = (doc.getObject("YZ_Plane"), [""])
sketch8.MapMode = "FlatFace"
add_polygon(sketch8, [(23.8, -3.2), (23.8, 3.2), (21.2, 3.2), (21.4, -3.2)])
sketch8.addGeometry(Part.LineSegment(App.Vector(23.8, -3.2, 0), App.Vector(23.8, 3.2, 0)), True)
sketch8.addConstraint([
    Sketcher.Constraint("Vertical", 0),
    Sketcher.Constraint("Horizontal", 1),
    Sketcher.Constraint("Horizontal", 3),
    Sketcher.Constraint("Vertical", 4),
    Sketcher.Constraint("Coincident", 4, 1, 3, 2),
    Sketcher.Constraint("Horizontal", 1, 2, 4, 2),
    Sketcher.Constraint("Angle", 2, Q("-88 deg")),
    Sketcher.Constraint("DistanceY", 0, 1, 0, 2, Q("0.25 in")),
    Sketcher.Constraint("DistanceX", 1, 2, 1, 1, Q("0.1025 in")),
    Sketcher.Constraint("DistanceX", -1, 1, 0, 2, Q("0.9375 in")),
    Sketcher.Constraint("DistanceY", -1, 1, 0, 2, Q("0.125 in")),
])
groove = body.newObject("PartDesign::Groove", "Groove")
groove.Profile = sketch8
groove.ReferenceAxis = (sketch8, ["Axis0"])
groove.Angle = 360

sketch9 = body.newObject("Sketcher::SketchObject", "Sketch008")
sketch9.AttachmentSupport = (doc.getObject("YZ_Plane"), [""])
sketch9.MapMode = "FlatFace"
sketch9.AttachmentOffset = App.Placement(App.Vector(0, 0, -20.62223), App.Rotation())
add_polygon(sketch9, [(-11.9, -3.2), (-11.9, 3.2), (-14.5, 3.2), (-14.2, -3.2)])
sketch9.addGeometry(Part.LineSegment(App.Vector(-11.9, -3.2, 0), App.Vector(-11.9, 3.2, 0)), True)
sketch9.addConstraint([
    Sketcher.Constraint("Vertical", 0),
    Sketcher.Constraint("Horizontal", 1),
    Sketcher.Constraint("Horizontal", 3),
    Sketcher.Constraint("Vertical", 4),
    Sketcher.Constraint("Coincident", 4, 1, 3, 2),
    Sketcher.Constraint("Horizontal", 1, 2, 4, 2),
    Sketcher.Constraint("DistanceY", 0, 1, 0, 2, Q("0.25 in")),
    Sketcher.Constraint("Angle", 2, Q("-87.5 deg")),
    Sketcher.Constraint("DistanceX", 1, 2, 1, 1, Q("0.1025 in")),
    Sketcher.Constraint("DistanceX", 0, 2, -1, 1, Q("0.46875 in")),
    Sketcher.Constraint("DistanceY", -1, 1, 0, 2, Q("0.125 in")),
])
groove2 = body.newObject("PartDesign::Groove", "Groove001")
groove2.Profile = sketch9
groove2.ReferenceAxis = (sketch9, ["Axis0"])
groove2.Angle = 360

sketch10 = body.newObject("Sketcher::SketchObject", "Sketch009")
sketch10.AttachmentSupport = (doc.getObject("YZ_Plane"), [""])
sketch10.MapMode = "FlatFace"
add_polygon(sketch10, [(-23.8, -3.2), (-23.8, 3.2), (-26.4, 3.2), (-26.1, -3.2)])
sketch10.addGeometry(Part.LineSegment(App.Vector(-23.8, -3.2, 0), App.Vector(-23.8, 3.2, 0)), True)
sketch10.addConstraint([
    Sketcher.Constraint("Vertical", 0),
    Sketcher.Constraint("Horizontal", 1),
    Sketcher.Constraint("Horizontal", 3),
    Sketcher.Constraint("Vertical", 4),
    Sketcher.Constraint("Coincident", 4, 1, 3, 2),
    Sketcher.Constraint("Horizontal", 1, 2, 4, 2),
    Sketcher.Constraint("DistanceY", 0, 1, 0, 2, Q("0.25 in")),
    Sketcher.Constraint("Angle", 2, Q("-87.5 deg")),
    Sketcher.Constraint("DistanceX", 1, 2, -1, 1, Q("1.04 in")),
    Sketcher.Constraint("DistanceX", 1, 2, 1, 1, Q("0.1025 in")),
    Sketcher.Constraint("DistanceY", -1, 1, 0, 2, Q("0.125 in")),
])
groove3 = body.newObject("PartDesign::Groove", "Groove002")
groove3.Profile = sketch10
groove3.ReferenceAxis = (sketch10, ["Axis0"])
groove3.Angle = 360

sketch11 = body.newObject("Sketcher::SketchObject", "Sketch010")
sketch11.AttachmentSupport = (doc.getObject("YZ_Plane"), [""])
sketch11.MapMode = "FlatFace"
sketch11.AttachmentOffset = App.Placement(App.Vector(0, 0, 20.62223), App.Rotation())
add_polygon(sketch11, [(-11.9, -3.2), (-11.9, 3.2), (-14.5, 3.2), (-14.2, -3.2)])
sketch11.addGeometry(Part.LineSegment(App.Vector(-11.9, -3.2, 0), App.Vector(-11.9, 3.2, 0)), True)
sketch11.addConstraint([
    Sketcher.Constraint("Vertical", 0),
    Sketcher.Constraint("Horizontal", 1),
    Sketcher.Constraint("Horizontal", 3),
    Sketcher.Constraint("Vertical", 4),
    Sketcher.Constraint("Coincident", 4, 1, 3, 2),
    Sketcher.Constraint("Horizontal", 1, 2, 4, 2),
    Sketcher.Constraint("DistanceY", 0, 1, 0, 2, Q("0.25 in")),
    Sketcher.Constraint("Angle", 2, Q("-87.5 deg")),
    Sketcher.Constraint("DistanceX", 1, 2, 1, 1, Q("0.1025 in")),
    Sketcher.Constraint("DistanceX", 0, 2, -1, 1, Q("0.46875 in")),
    Sketcher.Constraint("DistanceY", -1, 1, 0, 2, Q("0.125 in")),
])
groove4 = body.newObject("PartDesign::Groove", "Groove003")
groove4.Profile = sketch11
groove4.ReferenceAxis = (sketch11, ["Axis0"])
groove4.Angle = 360

sketch12 = body.newObject("Sketcher::SketchObject", "Sketch011")
sketch12.AttachmentSupport = (doc.getObject("YZ_Plane"), [""])
sketch12.MapMode = "FlatFace"
sketch12.AttachmentOffset = App.Placement(App.Vector(0, 0, 20.62223), App.Rotation())
add_polygon(sketch12, [(11.9, -3.2), (11.9, 3.2), (9.3, 3.2), (9.6, -3.2)])
sketch12.addGeometry(Part.LineSegment(App.Vector(11.9, -3.2, 0), App.Vector(11.9, 3.2, 0)), True)
sketch12.addConstraint([
    Sketcher.Constraint("Vertical", 0),
    Sketcher.Constraint("Horizontal", 1),
    Sketcher.Constraint("Horizontal", 3),
    Sketcher.Constraint("Vertical", 4),
    Sketcher.Constraint("Coincident", 4, 1, 3, 2),
    Sketcher.Constraint("Horizontal", 1, 2, 4, 2),
    Sketcher.Constraint("DistanceY", 0, 1, 0, 2, Q("0.25 in")),
    Sketcher.Constraint("Angle", 2, Q("-87.5 deg")),
    Sketcher.Constraint("DistanceX", 1, 2, 1, 1, Q("0.1025 in")),
    Sketcher.Constraint("DistanceX", -1, 1, 0, 2, Q("0.46875 in")),
    Sketcher.Constraint("DistanceY", -1, 1, 0, 2, Q("0.125 in")),
])
groove5 = body.newObject("PartDesign::Groove", "Groove004")
groove5.Profile = sketch12
groove5.ReferenceAxis = (sketch12, ["Axis0"])
groove5.Angle = 360

sketch13 = body.newObject("Sketcher::SketchObject", "Sketch012")
sketch13.AttachmentSupport = (doc.getObject("YZ_Plane"), [""])
sketch13.MapMode = "FlatFace"
add_polygon(sketch13, [(0, -3), (0, 3), (-15, 3), (-14, -3)])
sketch13.addConstraint([
    Sketcher.Constraint("Vertical", 0),
    Sketcher.Constraint("Horizontal", 1),
    Sketcher.Constraint("Horizontal", 3),
    Sketcher.Constraint("Symmetric", 0, 2, 3, 2, -1, 1),
    Sketcher.Constraint("DistanceY", 0, 1, 0, 2, Q("0.25 in")),
    Sketcher.Constraint("Angle", 2, Q("-87.5 deg")),
    Sketcher.Constraint("DistanceX", 3, 1, 3, 2, Q("0.565 in")),
])
groove6 = body.newObject("PartDesign::Groove", "Groove005")
groove6.Profile = sketch13
groove6.ReferenceAxis = (sketch13, ["V_Axis"])
groove6.Angle = 360

sketch14 = body.newObject("Sketcher::SketchObject", "Sketch013")
sketch14.AttachmentSupport = (doc.getObject("YZ_Plane"), [""])
sketch14.MapMode = "FlatFace"
sketch14.AttachmentOffset = App.Placement(App.Vector(0, 0, -20.62223), App.Rotation())
add_polygon(sketch14, [(11.9, -3.2), (11.9, 3.2), (9.3, 3.2), (9.5, -3.2)])
sketch14.addGeometry(Part.LineSegment(App.Vector(11.9, -3.2, 0), App.Vector(11.9, 3.2, 0)), True)
sketch14.addConstraint([
    Sketcher.Constraint("Vertical", 0),
    Sketcher.Constraint("Horizontal", 1),
    Sketcher.Constraint("Horizontal", 3),
    Sketcher.Constraint("Vertical", 4),
    Sketcher.Constraint("Coincident", 4, 1, 3, 2),
    Sketcher.Constraint("Horizontal", 1, 2, 4, 2),
    Sketcher.Constraint("Angle", 2, Q("-88 deg")),
    Sketcher.Constraint("DistanceY", 0, 1, 0, 2, Q("0.25 in")),
    Sketcher.Constraint("DistanceX", 1, 2, 1, 1, Q("0.1025 in")),
    Sketcher.Constraint("DistanceX", -1, 1, 0, 2, Q("0.46875 in")),
    Sketcher.Constraint("DistanceY", -1, 1, 0, 2, Q("0.125 in")),
])
groove7 = body.newObject("PartDesign::Groove", "Groove006")
groove7.Profile = sketch14
groove7.ReferenceAxis = (sketch14, ["Axis0"])
groove7.Angle = 360

doc.recompute()
